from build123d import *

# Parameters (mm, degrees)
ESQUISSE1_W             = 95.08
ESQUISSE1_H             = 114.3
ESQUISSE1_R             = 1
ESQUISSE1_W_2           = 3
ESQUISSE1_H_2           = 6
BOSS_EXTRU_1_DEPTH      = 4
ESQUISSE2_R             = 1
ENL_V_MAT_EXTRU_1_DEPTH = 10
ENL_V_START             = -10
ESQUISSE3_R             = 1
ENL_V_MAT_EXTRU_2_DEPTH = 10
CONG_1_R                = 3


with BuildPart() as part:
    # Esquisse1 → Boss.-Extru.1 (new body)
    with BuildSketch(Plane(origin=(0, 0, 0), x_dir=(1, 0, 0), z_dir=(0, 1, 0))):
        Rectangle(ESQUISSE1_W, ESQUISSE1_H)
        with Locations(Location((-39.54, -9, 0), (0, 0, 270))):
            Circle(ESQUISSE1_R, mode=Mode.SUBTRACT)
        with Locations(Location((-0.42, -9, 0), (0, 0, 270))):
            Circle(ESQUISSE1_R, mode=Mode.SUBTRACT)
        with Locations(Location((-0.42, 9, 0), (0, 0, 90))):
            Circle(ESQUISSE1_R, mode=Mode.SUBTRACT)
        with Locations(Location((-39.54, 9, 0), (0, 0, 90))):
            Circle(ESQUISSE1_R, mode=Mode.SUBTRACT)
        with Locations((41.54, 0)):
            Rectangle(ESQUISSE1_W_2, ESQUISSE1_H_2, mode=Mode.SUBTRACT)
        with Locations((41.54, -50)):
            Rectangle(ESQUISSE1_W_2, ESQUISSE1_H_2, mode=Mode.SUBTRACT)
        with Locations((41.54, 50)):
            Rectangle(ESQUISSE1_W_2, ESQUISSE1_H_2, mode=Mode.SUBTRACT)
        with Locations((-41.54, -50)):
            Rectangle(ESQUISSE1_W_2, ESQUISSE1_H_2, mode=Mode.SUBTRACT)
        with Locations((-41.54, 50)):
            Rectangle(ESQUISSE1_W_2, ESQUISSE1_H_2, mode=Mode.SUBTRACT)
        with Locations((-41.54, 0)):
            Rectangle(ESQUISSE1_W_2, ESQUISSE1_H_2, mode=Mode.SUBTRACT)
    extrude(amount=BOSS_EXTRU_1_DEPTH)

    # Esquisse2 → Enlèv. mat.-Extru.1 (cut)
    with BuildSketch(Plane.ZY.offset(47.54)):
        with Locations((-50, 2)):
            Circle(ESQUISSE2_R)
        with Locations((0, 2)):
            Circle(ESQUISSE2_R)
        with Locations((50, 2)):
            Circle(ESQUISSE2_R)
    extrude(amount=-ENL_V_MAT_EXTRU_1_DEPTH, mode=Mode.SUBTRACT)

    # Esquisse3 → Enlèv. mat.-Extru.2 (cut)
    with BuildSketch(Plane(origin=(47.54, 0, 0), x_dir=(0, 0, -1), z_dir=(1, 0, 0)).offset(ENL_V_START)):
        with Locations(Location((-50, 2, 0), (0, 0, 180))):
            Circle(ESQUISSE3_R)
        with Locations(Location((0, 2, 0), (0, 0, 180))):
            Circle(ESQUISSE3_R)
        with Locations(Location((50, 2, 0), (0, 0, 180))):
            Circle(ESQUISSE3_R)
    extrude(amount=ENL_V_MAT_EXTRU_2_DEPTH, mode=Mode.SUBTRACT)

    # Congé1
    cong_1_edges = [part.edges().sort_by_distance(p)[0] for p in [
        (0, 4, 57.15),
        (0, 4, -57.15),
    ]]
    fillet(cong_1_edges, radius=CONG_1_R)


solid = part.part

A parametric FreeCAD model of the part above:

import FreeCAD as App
import Part
import Sketcher

V = App.Vector


def edges_at(feature, points):
    """Names of the edges that pass closest to the given points."""
    edges = feature.Shape.Edges
    near = lambda p: min(range(len(edges)), key=lambda i: edges[i].distToShape(Part.Vertex(*p))[0])
    return sorted({f"Edge{near(p) + 1}" for p in points})


def add_polygon(sketch, points):
    """Adds a closed chain of lines whose ends are joined by coincident constraints."""
    first, n = sketch.GeometryCount, len(points)
    for a, b in zip(points, points[1:] + points[:1]):
        sketch.addGeometry(Part.LineSegment(App.Vector(*a, 0), App.Vector(*b, 0)), False)
    for i in range(n):
        sketch.addConstraint(Sketcher.Constraint("Coincident", first + i, 2, first + (i + 1) % n, 1))

doc = App.newDocument("Part")
body = doc.addObject("PartDesign::Body", "Body")

# Sketch on XZ plane
sketch1 = body.newObject("Sketcher::SketchObject", "Sketch")
sketch1.AttachmentSupport = (doc.getObject("XZ_Plane"), [""])
sketch1.MapMode = "FlatFace"
add_polygon(sketch1, [(-47.5, -57.1), (-47.5, 57.1), (47.5, 57.1), (47.5, -57.1)])  # lines 0-3
add_polygon(sketch1, [(-40, 53), (-43, 53), (-43, 47), (-40, 47)])  # lines 4-7
sketch1.addGeometry(Part.Circle(V(-39.5, 9, 0), V(0, 0, 1), 1), False)  # 8
sketch1.addGeometry(Part.Circle(V(-0.4, 9, 0), V(0, 0, 1), 1), False)  # 9
add_polygon(sketch1, [(43, 53), (40, 53), (40, 47), (43, 47)])  # lines 10-13
add_polygon(sketch1, [(-40, 3), (-43, 3), (-43, -3), (-40, -3)])  # lines 14-17
sketch1.addGeometry(Part.Circle(V(-39.5, -9, 0), V(0, 0, 1), 1), False)  # 18
sketch1.addGeometry(Part.Circle(V(-0.4, -9, 0), V(0, 0, 1), 1), False)  # 19
add_polygon(sketch1, [(-40, -47), (-43, -47), (-43, -53), (-40, -53)])  # lines 20-23
add_polygon(sketch1, [(43, 3), (40, 3), (40, -3), (43, -3)])  # lines 24-27
add_polygon(sketch1, [(43, -47), (40, -47), (40, -53), (43, -53)])  # lines 28-31
sketch1.addConstraint([
    Sketcher.Constraint("Vertical", 0),
    Sketcher.Constraint("Horizontal", 1),
    Sketcher.Constraint("Vertical", 2),
    Sketcher.Constraint("Horizontal", 3),
    Sketcher.Constraint("Horizontal", 4),
    Sketcher.Constraint("Vertical", 5),
    Sketcher.Constraint("Horizontal", 6),
    Sketcher.Constraint("Vertical", 7),
    Sketcher.Constraint("Horizontal", 10),
    Sketcher.Constraint("Vertical", 11),
    Sketcher.Constraint("Horizontal", 12),
    Sketcher.Constraint("Vertical", 13),
    Sketcher.Constraint("Horizontal", 14),
    Sketcher.Constraint("Vertical", 15),
    Sketcher.Constraint("Horizontal", 16),
    Sketcher.Constraint("Vertical", 17),
    Sketcher.Constraint("Horizontal", 20),
    Sketcher.Constraint("Vertical", 21),
    Sketcher.Constraint("Horizontal", 22),
    Sketcher.Constraint("Vertical", 23),
    Sketcher.Constraint("Horizontal", 24),
    Sketcher.Constraint("Vertical", 25),
    Sketcher.Constraint("Horizontal", 26),
    Sketcher.Constraint("Vertical", 27),
    Sketcher.Constraint("Horizontal", 28),
    Sketcher.Constraint("Vertical", 29),
    Sketcher.Constraint("Horizontal", 30),
    Sketcher.Constraint("Vertical", 31),
    Sketcher.Constraint("Equal", 8, 9),
    Sketcher.Constraint("Equal", 9, 18),
    Sketcher.Constraint("Equal", 18, 19),
    Sketcher.Constraint("Symmetric", 0, 2, 2, 2, -1, 1),
    Sketcher.Constraint("Symmetric", 12, 2, 20, 2, -1, 1),
    Sketcher.Constraint("Symmetric", 10, 2, 22, 2, -1, 1),
    Sketcher.Constraint("Symmetric", 16, 2, 24, 2, -1, 1),
    Sketcher.Constraint("Symmetric", 14, 2, 26, 2, -1, 1),
    Sketcher.Constraint("Symmetric", 6, 2, 28, 2, -1, 1),
    Sketcher.Constraint("Symmetric", 4, 2, 30, 2, -1, 1),
    Sketcher.Constraint("Symmetric", 7, 2, 10, 2, -2),
    Sketcher.Constraint("Symmetric", 5, 2, 12, 2, -2),
    Sketcher.Constraint("Symmetric", 8, 3, 18, 3, -1),
    Sketcher.Constraint("Symmetric", 9, 3, 19, 3, -1),
    Sketcher.Constraint("Horizontal", 8, 3, 9, 3),
    Sketcher.Constraint("Horizontal", 17, 2, 24, 2),
    Sketcher.Constraint("Vertical", 5, 2, 14, 2),
    Sketcher.Constraint("Vertical", 7, 2, 16, 2),
    Sketcher.Constraint("Equal", 13, 15),
    Sketcher.Constraint("Diameter", 8, 2.0),
    Sketcher.Constraint("DistanceX", 4, 2, 4, 1, 3.0),
    Sketcher.Constraint("DistanceY", 5, 2, 5, 1, 6.0),
    Sketcher.Constraint("DistanceY", 0, 1, 0, 2, 114.3),
    Sketcher.Constraint("DistanceY", -1, 1, 8, 3, 9.0),
    Sketcher.Constraint("DistanceY", -1, 1, 4, 2, 53.0),
    Sketcher.Constraint("DistanceX", 0, 2, 8, 3, 8.0),
    Sketcher.Constraint("DistanceX", 1, 1, 1, 2, 95.08),
    Sketcher.Constraint("DistanceX", 0, 2, 4, 2, 4.5),
    Sketcher.Constraint("DistanceX", 9, 3, -1, 1, 0.42),
])
pad1 = body.newObject("PartDesign::Pad", "Pad")
pad1.Profile = sketch1
pad1.Length = 4
pad1.Reversed = True

# Sketch on YZ plane
sketch2 = body.newObject("Sketcher::SketchObject", "Sketch001")
sketch2.AttachmentSupport = (doc.getObject("YZ_Plane"), [""])
sketch2.MapMode = "FlatFace"
sketch2.AttachmentOffset = App.Placement(V(0, 0, -47.54), App.Rotation())
sketch2.addGeometry([
    Part.Circle(V(2, -50, 0), V(0, 0, 1), 1),
    Part.Circle(V(2, 0, 0), V(0, 0, 1), 1),
    Part.Circle(V(2, 50, 0), V(0, 0, 1), 1),
], False)
sketch2.addConstraint([
    Sketcher.Constraint("Equal", 0, 1),
    Sketcher.Constraint("Equal", 1, 2),
    Sketcher.Constraint("Symmetric", 0, 3, 2, 3, -1),
    Sketcher.Constraint("PointOnObject", 1, 3, -1),
    Sketcher.Constraint("Vertical", 0, 3, 1, 3),
    Sketcher.Constraint("Diameter", 0, 2.0),
    Sketcher.Constraint("DistanceX", -1, 1, 0, 3, 2.0),
    Sketcher.Constraint("DistanceY", 0, 3, -1, 1, 50.0),
])
pocket1 = body.newObject("PartDesign::Pocket", "Pocket")
pocket1.Profile = sketch2
pocket1.Length = 10
pocket1.Reversed = True

# Sketch on YZ plane
sketch3 = body.newObject("Sketcher::SketchObject", "Sketch002")
sketch3.AttachmentSupport = (doc.getObject("YZ_Plane"), [""])
sketch3.MapMode = "FlatFace"
sketch3.AttachmentOffset = App.Placement(V(0, 0, 37.54), App.Rotation())
sketch3.addGeometry([
    Part.Circle(V(2, 50, 0), V(0, 0, 1), 1),
    Part.Circle(V(2, 0, 0), V(0, 0, 1), 1),
    Part.Circle(V(2, -50, 0), V(0, 0, 1), 1),
], False)
sketch3.addConstraint([
    Sketcher.Constraint("Equal", 0, 1),
    Sketcher.Constraint("Equal", 1, 2),
    Sketcher.Constraint("Symmetric", 0, 3, 2, 3, -1),
    Sketcher.Constraint("PointOnObject", 1, 3, -1),
    Sketcher.Constraint("Vertical", 0, 3, 1, 3),
    Sketcher.Constraint("Diameter", 0, 2.0),
    Sketcher.Constraint("DistanceX", -1, 1, 0, 3, 2.0),
    Sketcher.Constraint("DistanceY", -1, 1, 0, 3, 50.0),
])
pocket2 = body.newObject("PartDesign::Pocket", "Pocket001")
pocket2.Profile = sketch3
pocket2.Length = 10
pocket2.Reversed = True
doc.recompute()

fillet = body.newObject("PartDesign::Fillet", "Fillet")
fillet.Base = (pocket2, edges_at(pocket2, [(0, 4, 57.15), (0, 4, -57.15)]))
fillet.Radius = 3

doc.recompute()
